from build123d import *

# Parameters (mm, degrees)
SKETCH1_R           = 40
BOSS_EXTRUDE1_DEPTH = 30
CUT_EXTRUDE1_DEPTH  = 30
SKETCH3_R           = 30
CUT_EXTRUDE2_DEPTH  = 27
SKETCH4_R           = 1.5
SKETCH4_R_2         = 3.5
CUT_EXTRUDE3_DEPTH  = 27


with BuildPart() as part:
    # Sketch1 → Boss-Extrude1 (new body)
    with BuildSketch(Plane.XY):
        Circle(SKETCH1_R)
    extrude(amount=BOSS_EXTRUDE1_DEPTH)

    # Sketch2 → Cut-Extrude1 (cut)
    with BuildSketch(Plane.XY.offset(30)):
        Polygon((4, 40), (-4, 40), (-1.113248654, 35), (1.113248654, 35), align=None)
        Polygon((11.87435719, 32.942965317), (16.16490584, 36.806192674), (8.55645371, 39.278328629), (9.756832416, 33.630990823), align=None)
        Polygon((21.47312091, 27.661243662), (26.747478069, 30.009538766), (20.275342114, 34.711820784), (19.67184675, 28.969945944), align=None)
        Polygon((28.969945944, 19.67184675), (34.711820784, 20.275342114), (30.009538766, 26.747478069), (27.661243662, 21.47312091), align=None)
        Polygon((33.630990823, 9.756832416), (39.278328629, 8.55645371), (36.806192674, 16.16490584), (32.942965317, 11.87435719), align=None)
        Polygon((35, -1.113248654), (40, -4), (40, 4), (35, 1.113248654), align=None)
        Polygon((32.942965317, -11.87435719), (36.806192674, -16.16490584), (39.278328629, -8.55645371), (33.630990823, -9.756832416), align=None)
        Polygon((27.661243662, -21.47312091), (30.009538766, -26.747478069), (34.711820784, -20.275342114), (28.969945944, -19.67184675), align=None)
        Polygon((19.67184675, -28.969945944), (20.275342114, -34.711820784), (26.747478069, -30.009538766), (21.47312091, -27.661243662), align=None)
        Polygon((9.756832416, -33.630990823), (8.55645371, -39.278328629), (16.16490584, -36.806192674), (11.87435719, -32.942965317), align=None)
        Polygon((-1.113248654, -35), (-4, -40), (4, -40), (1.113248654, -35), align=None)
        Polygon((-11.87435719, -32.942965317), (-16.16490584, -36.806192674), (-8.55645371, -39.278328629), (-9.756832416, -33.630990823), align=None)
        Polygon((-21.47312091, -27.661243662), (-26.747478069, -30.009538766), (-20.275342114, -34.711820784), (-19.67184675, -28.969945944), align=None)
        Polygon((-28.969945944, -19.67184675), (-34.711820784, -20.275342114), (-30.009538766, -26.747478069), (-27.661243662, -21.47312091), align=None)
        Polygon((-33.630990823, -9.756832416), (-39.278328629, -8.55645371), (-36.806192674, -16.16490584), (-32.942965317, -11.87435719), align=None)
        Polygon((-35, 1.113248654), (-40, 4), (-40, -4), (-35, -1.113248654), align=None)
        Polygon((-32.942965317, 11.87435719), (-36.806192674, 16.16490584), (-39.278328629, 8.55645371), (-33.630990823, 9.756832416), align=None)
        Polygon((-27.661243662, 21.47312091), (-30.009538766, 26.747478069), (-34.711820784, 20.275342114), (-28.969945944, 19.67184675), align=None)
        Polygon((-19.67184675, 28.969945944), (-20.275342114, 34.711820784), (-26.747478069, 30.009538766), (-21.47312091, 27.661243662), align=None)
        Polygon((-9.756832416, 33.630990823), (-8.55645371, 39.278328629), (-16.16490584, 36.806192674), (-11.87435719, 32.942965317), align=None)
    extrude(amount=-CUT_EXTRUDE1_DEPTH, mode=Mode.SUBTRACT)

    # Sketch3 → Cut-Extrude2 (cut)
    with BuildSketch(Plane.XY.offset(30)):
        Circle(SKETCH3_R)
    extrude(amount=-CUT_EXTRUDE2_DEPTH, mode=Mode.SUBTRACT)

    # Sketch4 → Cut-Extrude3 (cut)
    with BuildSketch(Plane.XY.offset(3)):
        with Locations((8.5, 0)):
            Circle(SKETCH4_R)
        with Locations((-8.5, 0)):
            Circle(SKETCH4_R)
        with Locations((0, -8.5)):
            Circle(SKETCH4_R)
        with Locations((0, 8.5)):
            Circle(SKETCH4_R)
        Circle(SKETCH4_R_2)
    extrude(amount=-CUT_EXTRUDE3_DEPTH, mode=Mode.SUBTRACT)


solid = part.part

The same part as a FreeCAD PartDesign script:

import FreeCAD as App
import Part
import Sketcher
Q = App.Units.Quantity


def add_polygon(sketch, points):
    """Adds a closed chain of lines whose ends are joined by coincident constraints."""
    first, n = sketch.GeometryCount, len(points)
    for a, b in zip(points, points[1:] + points[:1]):
        sketch.addGeometry(Part.LineSegment(App.Vector(*a, 0), App.Vector(*b, 0)), False)
    for i in range(n):
        sketch.addConstraint(Sketcher.Constraint("Coincident", first + i, 2, first + (i + 1) % n, 1))

doc = App.newDocument("Part")
params = doc.addObject("Spreadsheet::Sheet", "Params")
for row, (alias, value) in enumerate([
    ("sketch1_diameter", "80 mm"),
    ("pad1_length", "30 mm"),
    ("sketch2_width", "8 mm"),
    ("sketch2_length", "8 mm"),
    ("pocket1_length", "30 mm"),
    ("sketch3_diameter", "60 mm"),
    ("pocket2_length", "27 mm"),
    ("sketch4_diameter", "3 mm"),
    ("sketch4_diameter2", "7 mm"),
    ("pocket3_length", "27 mm"),
], start=1):
    params.set(f"A{row}", alias)
    params.set(f"B{row}", "=" + value)
    params.setAlias(f"B{row}", alias)

body = doc.addObject("PartDesign::Body", "Body")

# Sketch on XY plane
sketch1 = body.newObject("Sketcher::SketchObject", "Sketch")
sketch1.AttachmentSupport = (doc.getObject("XY_Plane"), [""])
sketch1.MapMode = "FlatFace"
sketch1.addGeometry(Part.Circle(App.Vector(0, 0, 0), App.Vector(0, 0, 1), 40), False)
sketch1.addConstraint([
    Sketcher.Constraint("Coincident", 0, 3, -1, 1),
    Sketcher.Constraint("Diameter", 0, Q("80 mm")),
])
sketch1.setExpression("Constraints[1]", "Params.sketch1_diameter")
pad1 = body.newObject("PartDesign::Pad", "Pad")
pad1.Profile = sketch1
pad1.setExpression("Length", "Params.pad1_length")

# Sketch on XY plane
sketch2 = body.newObject("Sketcher::SketchObject", "Sketch001")
sketch2.AttachmentSupport = (doc.getObject("XY_Plane"), [""])
sketch2.MapMode = "FlatFace"
sketch2.AttachmentOffset = App.Placement(App.Vector(0, 0, 30), App.Rotation())
add_polygon(sketch2, [(4, 40), (-4, 40), (-1.1, 35), (1.1, 35)])  # lines 0-3
add_polygon(sketch2, [(11.9, 32.9), (16.2, 36.8), (8.6, 39.3), (9.8, 33.6)])  # lines 4-7
add_polygon(sketch2, [(21.5, 27.7), (26.7, 30), (20.3, 34.7), (19.7, 29)])  # lines 8-11
add_polygon(sketch2, [(29, 19.7), (34.7, 20.3), (30, 26.7), (27.7, 21.5)])  # lines 12-15
add_polygon(sketch2, [(33.6, 9.8), (39.3, 8.6), (36.8, 16.2), (32.9, 11.9)])  # lines 16-19
add_polygon(sketch2, [(35, -1.1), (40, -4), (40, 4), (35, 1.1)])  # lines 20-23
add_polygon(sketch2, [(32.9, -11.9), (36.8, -16.2), (39.3, -8.6), (33.6, -9.8)])  # lines 24-27
add_polygon(sketch2, [(27.7, -21.5), (30, -26.7), (34.7, -20.3), (29, -19.7)])  # lines 28-31
add_polygon(sketch2, [(19.7, -29), (20.3, -34.7), (26.7, -30), (21.5, -27.7)])  # lines 32-35
add_polygon(sketch2, [(9.8, -33.6), (8.6, -39.3), (16.2, -36.8), (11.9, -32.9)])  # lines 36-39
add_polygon(sketch2, [(-1.1, -35), (-4, -40), (4, -40), (1.1, -35)])  # lines 40-43
add_polygon(sketch2, [(-11.9, -32.9), (-16.2, -36.8), (-8.6, -39.3), (-9.8, -33.6)])  # lines 44-47
add_polygon(sketch2, [(-21.5, -27.7), (-26.7, -30), (-20.3, -34.7), (-19.7, -29)])  # lines 48-51
add_polygon(sketch2, [(-29, -19.7), (-34.7, -20.3), (-30, -26.7), (-27.7, -21.5)])  # lines 52-55
add_polygon(sketch2, [(-33.6, -9.8), (-39.3, -8.6), (-36.8, -16.2), (-32.9, -11.9)])  # lines 56-59
add_polygon(sketch2, [(-35, 1.1), (-40, 4), (-40, -4), (-35, -1.1)])  # lines 60-63
add_polygon(sketch2, [(-32.9, 11.9), (-36.8, 16.2), (-39.3, 8.6), (-33.6, 9.8)])  # lines 64-67
add_polygon(sketch2, [(-27.7, 21.5), (-30, 26.7), (-34.7, 20.3), (-29, 19.7)])  # lines 68-71
add_polygon(sketch2, [(-19.7, 29), (-20.3, 34.7), (-26.7, 30), (-21.5, 27.7)])  # lines 72-75
add_polygon(sketch2, [(-9.8, 33.6), (-8.6, 39.3), (-16.2, 36.8), (-11.9, 32.9)])  # lines 76-79
sketch2.addConstraint([
    Sketcher.Constraint("Horizontal", 0),
    Sketcher.Constraint("Horizontal", 2),
    Sketcher.Constraint("Vertical", 21),
    Sketcher.Constraint("Vertical", 23),
    Sketcher.Constraint("Horizontal", 41),
    Sketcher.Constraint("Horizontal", 43),
    Sketcher.Constraint("Vertical", 61),
    Sketcher.Constraint("Vertical", 63),
    Sketcher.Constraint("Symmetric", 3, 2, 40, 2, -1, 1),
    Sketcher.Constraint("Symmetric", 1, 2, 42, 2, -1, 1),
    Sketcher.Constraint("Symmetric", 4, 2, 44, 2, -1, 1),
    Sketcher.Constraint("Symmetric", 5, 2, 45, 2, -1, 1),
    Sketcher.Constraint("Symmetric", 6, 2, 46, 2, -1, 1),
    Sketcher.Constraint("Symmetric", 7, 2, 47, 2, -1, 1),
    Sketcher.Constraint("Symmetric", 8, 2, 48, 2, -1, 1),
    Sketcher.Constraint("Symmetric", 9, 2, 49, 2, -1, 1),
    Sketcher.Constraint("Symmetric", 10, 2, 50, 2, -1, 1),
    Sketcher.Constraint("Symmetric", 11, 2, 51, 2, -1, 1),
    Sketcher.Constraint("Symmetric", 12, 2, 52, 2, -1, 1),
    Sketcher.Constraint("Symmetric", 13, 2, 53, 2, -1, 1),
    Sketcher.Constraint("Symmetric", 14, 2, 54, 2, -1, 1),
    Sketcher.Constraint("Symmetric", 15, 2, 55, 2, -1, 1),
    Sketcher.Constraint("Symmetric", 16, 2, 56, 2, -1, 1),
    Sketcher.Constraint("Symmetric", 17, 2, 57, 2, -1, 1),
    Sketcher.Constraint("Symmetric", 18, 2, 58, 2, -1, 1),
    Sketcher.Constraint("Symmetric", 19, 2, 59, 2, -1, 1),
    Sketcher.Constraint("Symmetric", 20, 2, 60, 2, -1, 1),
    Sketcher.Constraint("Symmetric", 22, 2, 62, 2, -1, 1),
    Sketcher.Constraint("Symmetric", 24, 2, 64, 2, -1, 1),
    Sketcher.Constraint("Symmetric", 25, 2, 65, 2, -1, 1),
    Sketcher.Constraint("Symmetric", 26, 2, 66, 2, -1, 1),
    Sketcher.Constraint("Symmetric", 27, 2, 67, 2, -1, 1),
    Sketcher.Constraint("Symmetric", 28, 2, 68, 2, -1, 1),
    Sketcher.Constraint("Symmetric", 29, 2, 69, 2, -1, 1),
    Sketcher.Constraint("Symmetric", 30, 2, 70, 2, -1, 1),
    Sketcher.Constraint("Symmetric", 31, 2, 71, 2, -1, 1),
    Sketcher.Constraint("Symmetric", 32, 2, 72, 2, -1, 1),
    Sketcher.Constraint("Symmetric", 33, 2, 73, 2, -1, 1),
    Sketcher.Constraint("Symmetric", 34, 2, 74, 2, -1, 1),
    Sketcher.Constraint("Symmetric", 35, 2, 75, 2, -1, 1),
    Sketcher.Constraint("Symmetric", 36, 2, 76, 2, -1, 1),
    Sketcher.Constraint("Symmetric", 37, 2, 77, 2, -1, 1),
    Sketcher.Constraint("Symmetric", 38, 2, 78, 2, -1, 1),
    Sketcher.Constraint("Symmetric", 39, 2, 79, 2, -1, 1),
    Sketcher.Constraint("Symmetric", 37, 2, 44, 2, -2),
    Sketcher.Constraint("Symmetric", 36, 2, 45, 2, -2),
    Sketcher.Constraint("Symmetric", 39, 2, 46, 2, -2),
    Sketcher.Constraint("Symmetric", 38, 2, 47, 2, -2),
    Sketcher.Constraint("Symmetric", 33, 2, 48, 2, -2),
    Sketcher.Constraint("Symmetric", 32, 2, 49, 2, -2),
    Sketcher.Constraint("Symmetric", 35, 2, 50, 2, -2),
    Sketcher.Constraint("Symmetric", 34, 2, 51, 2, -2),
    Sketcher.Constraint("Symmetric", 29, 2, 52, 2, -2),
    Sketcher.Constraint("Symmetric", 28, 2, 53, 2, -2),
    Sketcher.Constraint("Symmetric", 31, 2, 54, 2, -2),
    Sketcher.Constraint("Symmetric", 30, 2, 55, 2, -2),
    Sketcher.Constraint("Symmetric", 25, 2, 56, 2, -2),
    Sketcher.Constraint("Symmetric", 24, 2, 57, 2, -2),
    Sketcher.Constraint("Symmetric", 27, 2, 58, 2, -2),
    Sketcher.Constraint("Symmetric", 26, 2, 59, 2, -2),
    Sketcher.Constraint("Parallel", 5, 7),
    Sketcher.Constraint("Parallel", 9, 11),
    Sketcher.Constraint("Parallel", 13, 15),
    Sketcher.Constraint("Parallel", 17, 19),
    Sketcher.Constraint("Perpendicular", 3, 20),
    Sketcher.Constraint("Perpendicular", 1, 22),
    Sketcher.Constraint("Perpendicular", 4, 24),
    Sketcher.Constraint("Perpendicular", 7, 25),
    Sketcher.Constraint("Perpendicular", 6, 26),
    Sketcher.Constraint("Perpendicular", 8, 28),
    Sketcher.Constraint("Perpendicular", 11, 29),
    Sketcher.Constraint("Perpendicular", 10, 30),
    Sketcher.Constraint("Perpendicular", 20, 40),
    Sketcher.Constraint("Perpendicular", 22, 42),
    Sketcher.Constraint("Perpendicular", 40, 60),
    Sketcher.Constraint("Perpendicular", 42, 62),
    Sketcher.Constraint("Horizontal", 21, 2, 60, 2),
    Sketcher.Constraint("Horizontal", 23, 2, 62, 2),
    Sketcher.Constraint("Vertical", 0, 2, 40, 2),
    Sketcher.Constraint("Equal", 41, 21),
    Sketcher.Constraint("Equal", 43, 23),
    Sketcher.Constraint("Equal", 3, 4),
    Sketcher.Constraint("Equal", 4, 6),
    Sketcher.Constraint("Equal", 6, 8),
    Sketcher.Constraint("Equal", 5, 9),
    Sketcher.Constraint("Equal", 8, 10),
    Sketcher.Constraint("Equal", 7, 11),
    Sketcher.Constraint("Equal", 10, 12),
    Sketcher.Constraint("Equal", 9, 13),
    Sketcher.Constraint("Equal", 14, 16),
    Sketcher.Constraint("Equal", 13, 17),
    Sketcher.Constraint("DistanceX", 0, 2, 0, 1, Q("8 mm")),
    Sketcher.Constraint("Angle", 1, Q("-60 deg")),
    Sketcher.Constraint("Angle", 4, Q("42 deg")),
    Sketcher.Constraint("Angle", 5, Q("162 deg")),
    Sketcher.Constraint("Angle", 8, Q("24 deg")),
    Sketcher.Constraint("Distance", 5, Q("8 mm")),
    Sketcher.Constraint("DistanceY", -1, 1, 0, 2, Q("40 mm")),
    Sketcher.Constraint("DistanceY", -1, 1, 1, 2, Q("35 mm")),
    Sketcher.Constraint("DistanceX", -1, 1, 20, 2, Q("40 mm")),
    Sketcher.Constraint("DistanceY", -1, 1, 5, 2, Q("39.278329 mm")),
    Sketcher.Constraint("DistanceX", -1, 1, 8, 2, Q("26.747478 mm")),
    Sketcher.Constraint("DistanceY", -1, 1, 8, 2, Q("30.009539 mm")),
    Sketcher.Constraint("DistanceX", -1, 1, 12, 2, Q("34.711821 mm")),
    Sketcher.Constraint("DistanceY", -1, 1, 13, 2, Q("26.747478 mm")),
    Sketcher.Constraint("DistanceX", -1, 1, 16, 2, Q("39.278329 mm")),
    Sketcher.Constraint("DistanceX", -1, 1, 4, 2, Q("16.164906 mm")),
    Sketcher.Constraint("DistanceY", -1, 1, 16, 2, Q("8.556454 mm")),
])
sketch2.setExpression("Constraints[171]", "Params.sketch2_width")
sketch2.setExpression("Constraints[176]", "Params.sketch2_length")
pocket1 = body.newObject("PartDesign::Pocket", "Pocket")
pocket1.Profile = sketch2
pocket1.setExpression("Length", "Params.pocket1_length")

# Sketch on XY plane
sketch3 = body.newObject("Sketcher::SketchObject", "Sketch002")
sketch3.AttachmentSupport = (doc.getObject("XY_Plane"), [""])
sketch3.MapMode = "FlatFace"
sketch3.AttachmentOffset = App.Placement(App.Vector(0, 0, 30), App.Rotation())
sketch3.addGeometry(Part.Circle(App.Vector(0, 0, 0), App.Vector(0, 0, 1), 30), False)
sketch3.addConstraint([
    Sketcher.Constraint("Coincident", 0, 3, -1, 1),
    Sketcher.Constraint("Diameter", 0, Q("60 mm")),
])
sketch3.setExpression("Constraints[1]", "Params.sketch3_diameter")
pocket2 = body.newObject("PartDesign::Pocket", "Pocket001")
pocket2.Profile = sketch3
pocket2.setExpression("Length", "Params.pocket2_length")

# Sketch on XY plane
sketch4 = body.newObject("Sketcher::SketchObject", "Sketch003")
sketch4.AttachmentSupport = (doc.getObject("XY_Plane"), [""])
sketch4.MapMode = "FlatFace"
sketch4.AttachmentOffset = App.Placement(App.Vector(0, 0, 3), App.Rotation())
sketch4.addGeometry([
    Part.Circle(App.Vector(8.5, 0, 0), App.Vector(0, 0, 1), 1.5),  # 0
    Part.Circle(App.Vector(-8.5, 0, 0), App.Vector(0, 0, 1), 1.5),  # 1
    Part.Circle(App.Vector(0, -8.5, 0), App.Vector(0, 0, 1), 1.5),  # 2
    Part.Circle(App.Vector(0, 8.5, 0), App.Vector(0, 0, 1), 1.5),  # 3
    Part.Circle(App.Vector(0, 0, 0), App.Vector(0, 0, 1), 3.5),  # 4
], False)
sketch4.addConstraint([
    Sketcher.Constraint("Coincident", 4, 3, -1, 1),
    Sketcher.Constraint("Equal", 0, 1),
    Sketcher.Constraint("Equal", 1, 2),
    Sketcher.Constraint("Equal", 2, 3),
    Sketcher.Constraint("Symmetric", 0, 3, 1, 3, -1, 1),
    Sketcher.Constraint("Symmetric", 2, 3, 3, 3, -1, 1),
    Sketcher.Constraint("PointOnObject", 0, 3, -1),
    Sketcher.Constraint("PointOnObject", 2, 3, -2),
    Sketcher.Constraint("Diameter", 0, Q("3 mm")),
    Sketcher.Constraint("Diameter", 4, Q("7 mm")),
    Sketcher.Constraint("DistanceX", 1, 3, 0, 3, Q("17 mm")),
    Sketcher.Constraint("DistanceY", 2, 3, 3, 3, Q("17 mm")),
])
sketch4.setExpression("Constraints[8]", "Params.sketch4_diameter")
sketch4.setExpression("Constraints[9]", "Params.sketch4_diameter2")
pocket3 = body.newObject("PartDesign::Pocket", "Pocket002")
pocket3.Profile = sketch4
pocket3.setExpression("Length", "Params.pocket3_length")

doc.recompute()
